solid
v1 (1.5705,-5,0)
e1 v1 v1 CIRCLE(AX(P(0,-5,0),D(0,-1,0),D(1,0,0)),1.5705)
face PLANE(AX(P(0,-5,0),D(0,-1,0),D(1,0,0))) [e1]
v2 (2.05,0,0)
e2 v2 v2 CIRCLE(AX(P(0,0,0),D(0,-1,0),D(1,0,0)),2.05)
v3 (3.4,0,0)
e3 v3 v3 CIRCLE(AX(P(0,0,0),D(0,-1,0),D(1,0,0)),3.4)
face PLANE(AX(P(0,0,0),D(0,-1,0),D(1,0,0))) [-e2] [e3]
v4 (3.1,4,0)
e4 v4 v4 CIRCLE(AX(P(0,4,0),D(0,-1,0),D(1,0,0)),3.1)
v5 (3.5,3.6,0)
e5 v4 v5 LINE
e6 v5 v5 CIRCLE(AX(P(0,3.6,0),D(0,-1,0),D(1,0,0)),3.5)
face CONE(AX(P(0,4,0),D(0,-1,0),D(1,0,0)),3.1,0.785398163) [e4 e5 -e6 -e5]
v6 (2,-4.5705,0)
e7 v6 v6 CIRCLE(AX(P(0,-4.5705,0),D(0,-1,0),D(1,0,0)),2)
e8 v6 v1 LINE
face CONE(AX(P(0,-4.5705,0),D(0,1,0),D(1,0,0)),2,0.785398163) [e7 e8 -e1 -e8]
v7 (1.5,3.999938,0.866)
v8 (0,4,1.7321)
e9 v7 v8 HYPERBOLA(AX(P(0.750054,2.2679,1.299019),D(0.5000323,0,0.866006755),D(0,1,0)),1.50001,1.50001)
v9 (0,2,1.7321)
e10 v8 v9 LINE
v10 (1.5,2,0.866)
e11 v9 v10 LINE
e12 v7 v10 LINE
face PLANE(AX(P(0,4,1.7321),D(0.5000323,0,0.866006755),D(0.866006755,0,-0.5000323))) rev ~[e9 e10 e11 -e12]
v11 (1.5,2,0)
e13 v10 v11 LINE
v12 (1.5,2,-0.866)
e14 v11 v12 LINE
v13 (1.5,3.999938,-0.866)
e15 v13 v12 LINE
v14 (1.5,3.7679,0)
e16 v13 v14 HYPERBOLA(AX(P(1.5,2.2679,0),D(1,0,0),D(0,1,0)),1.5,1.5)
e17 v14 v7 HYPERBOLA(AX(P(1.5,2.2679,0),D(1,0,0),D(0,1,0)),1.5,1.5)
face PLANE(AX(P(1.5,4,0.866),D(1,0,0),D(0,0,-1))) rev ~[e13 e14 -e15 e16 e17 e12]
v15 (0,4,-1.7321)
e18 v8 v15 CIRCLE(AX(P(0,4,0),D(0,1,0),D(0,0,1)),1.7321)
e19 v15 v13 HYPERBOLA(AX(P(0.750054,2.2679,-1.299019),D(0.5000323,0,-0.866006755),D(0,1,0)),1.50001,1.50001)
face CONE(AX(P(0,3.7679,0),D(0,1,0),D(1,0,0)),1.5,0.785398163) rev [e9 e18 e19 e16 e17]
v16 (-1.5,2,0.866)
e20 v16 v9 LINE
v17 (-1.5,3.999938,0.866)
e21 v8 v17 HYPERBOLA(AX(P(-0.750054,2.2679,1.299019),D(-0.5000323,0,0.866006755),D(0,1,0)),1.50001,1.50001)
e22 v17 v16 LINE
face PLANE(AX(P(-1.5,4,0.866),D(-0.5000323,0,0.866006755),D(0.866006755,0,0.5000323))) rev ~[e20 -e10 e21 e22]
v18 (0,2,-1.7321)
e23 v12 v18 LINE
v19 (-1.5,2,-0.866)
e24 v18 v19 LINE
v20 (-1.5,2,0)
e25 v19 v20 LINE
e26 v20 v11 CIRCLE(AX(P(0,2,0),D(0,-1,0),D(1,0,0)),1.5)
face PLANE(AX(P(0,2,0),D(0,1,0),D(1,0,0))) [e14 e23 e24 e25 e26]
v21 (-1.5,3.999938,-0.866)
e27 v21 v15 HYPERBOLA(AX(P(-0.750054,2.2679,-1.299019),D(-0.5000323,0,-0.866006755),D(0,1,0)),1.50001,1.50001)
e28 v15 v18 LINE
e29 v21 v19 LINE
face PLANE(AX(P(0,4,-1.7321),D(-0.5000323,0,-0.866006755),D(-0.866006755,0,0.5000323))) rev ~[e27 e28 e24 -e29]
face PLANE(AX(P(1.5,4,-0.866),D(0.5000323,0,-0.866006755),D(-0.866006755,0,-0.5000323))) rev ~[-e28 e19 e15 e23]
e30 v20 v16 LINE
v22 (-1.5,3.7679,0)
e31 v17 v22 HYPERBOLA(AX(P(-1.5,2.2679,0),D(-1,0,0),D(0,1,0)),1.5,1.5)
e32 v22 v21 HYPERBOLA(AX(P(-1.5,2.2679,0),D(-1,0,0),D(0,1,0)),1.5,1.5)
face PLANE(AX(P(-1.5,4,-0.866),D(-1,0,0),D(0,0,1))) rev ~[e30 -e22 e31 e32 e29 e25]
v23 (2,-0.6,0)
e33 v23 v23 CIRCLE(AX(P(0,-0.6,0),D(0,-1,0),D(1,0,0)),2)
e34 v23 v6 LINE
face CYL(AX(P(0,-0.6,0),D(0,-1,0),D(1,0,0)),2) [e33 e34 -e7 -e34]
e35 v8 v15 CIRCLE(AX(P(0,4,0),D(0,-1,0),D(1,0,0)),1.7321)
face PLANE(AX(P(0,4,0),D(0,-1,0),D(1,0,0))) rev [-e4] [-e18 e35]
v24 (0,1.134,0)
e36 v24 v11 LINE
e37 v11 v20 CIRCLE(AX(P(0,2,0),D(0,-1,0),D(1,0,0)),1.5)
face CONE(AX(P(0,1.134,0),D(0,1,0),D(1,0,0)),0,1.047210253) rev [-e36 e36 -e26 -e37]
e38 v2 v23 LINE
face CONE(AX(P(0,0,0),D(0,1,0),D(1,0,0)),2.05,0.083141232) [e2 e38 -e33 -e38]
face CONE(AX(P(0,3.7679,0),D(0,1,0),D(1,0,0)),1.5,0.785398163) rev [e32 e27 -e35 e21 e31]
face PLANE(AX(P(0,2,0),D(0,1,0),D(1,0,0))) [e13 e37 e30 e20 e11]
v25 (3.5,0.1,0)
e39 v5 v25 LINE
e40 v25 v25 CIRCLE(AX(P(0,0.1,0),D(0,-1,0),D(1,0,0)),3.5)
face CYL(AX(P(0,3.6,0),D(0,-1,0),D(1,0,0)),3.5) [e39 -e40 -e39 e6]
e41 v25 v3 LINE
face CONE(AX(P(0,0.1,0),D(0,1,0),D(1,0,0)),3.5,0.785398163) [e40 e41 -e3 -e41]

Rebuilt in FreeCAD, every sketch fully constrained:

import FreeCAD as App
import Part
import Sketcher
Q = App.Units.Quantity

doc = App.newDocument("Part")
body = doc.addObject("PartDesign::Body", "Body")

sketch1 = body.newObject("Sketcher::SketchObject", "Sketch")
sketch1.AttachmentSupport = (doc.getObject("XY_Plane"), [""])
sketch1.MapMode = "FlatFace"
sketch1.addGeometry([
    Part.LineSegment(App.Vector(0, 1.13, 0), App.Vector(0, -5, 0)),
    Part.LineSegment(App.Vector(0, -5, 0), App.Vector(1.57, -5, 0)),
    Part.LineSegment(App.Vector(1.57, -5, 0), App.Vector(2, -4.57, 0)),
    Part.LineSegment(App.Vector(2, -4.57, 0), App.Vector(2, -0.6, 0)),
    Part.LineSegment(App.Vector(2, -0.6, 0), App.Vector(2.05, 0, 0)),
    Part.LineSegment(App.Vector(2.05, 0, 0), App.Vector(3.4, 0, 0)),
    Part.LineSegment(App.Vector(3.4, 0, 0), App.Vector(3.5, 0.1, 0)),
    Part.LineSegment(App.Vector(3.5, 0.1, 0), App.Vector(3.5, 3.6, 0)),
    Part.LineSegment(App.Vector(3.5, 3.6, 0), App.Vector(3.1, 4, 0)),
    Part.LineSegment(App.Vector(3.1, 4, 0), App.Vector(1.73, 4, 0)),
    Part.LineSegment(App.Vector(1.73, 4, 0), App.Vector(1.5, 3.77, 0)),
    Part.LineSegment(App.Vector(1.5, 3.77, 0), App.Vector(1.5, 2, 0)),
    Part.LineSegment(App.Vector(1.5, 2, 0), App.Vector(0, 1.13, 0)),
], False)
sketch1.addConstraint([
    Sketcher.Constraint("Coincident", 0, 2, 1, 1),
    Sketcher.Constraint("Coincident", 1, 2, 2, 1),
    Sketcher.Constraint("Coincident", 2, 2, 3, 1),
    Sketcher.Constraint("Coincident", 3, 2, 4, 1),
    Sketcher.Constraint("Coincident", 4, 2, 5, 1),
    Sketcher.Constraint("Coincident", 5, 2, 6, 1),
    Sketcher.Constraint("Coincident", 6, 2, 7, 1),
    Sketcher.Constraint("Coincident", 7, 2, 8, 1),
    Sketcher.Constraint("Coincident", 8, 2, 9, 1),
    Sketcher.Constraint("Coincident", 9, 2, 10, 1),
    Sketcher.Constraint("Coincident", 10, 2, 11, 1),
    Sketcher.Constraint("Coincident", 11, 2, 12, 1),
    Sketcher.Constraint("Coincident", 12, 2, 0, 1),
    Sketcher.Constraint("Vertical", 0),
    Sketcher.Constraint("Horizontal", 1),
    Sketcher.Constraint("Vertical", 3),
    Sketcher.Constraint("Horizontal", 5),
    Sketcher.Constraint("Vertical", 7),
    Sketcher.Constraint("Horizontal", 9),
    Sketcher.Constraint("Vertical", 11),
    Sketcher.Constraint("PointOnObject", 0, 2, -2),
    Sketcher.Constraint("PointOnObject", 4, 2, -1),
    Sketcher.Constraint("Parallel", 2, 6),
    Sketcher.Constraint("Perpendicular", 6, 8),
    Sketcher.Constraint("Perpendicular", 8, 10),
    Sketcher.Constraint("Angle", 2, Q("45 deg")),
    Sketcher.Constraint("Angle", 12, Q("-150.0007 deg")),
    Sketcher.Constraint("DistanceY", 7, 1, 7, 2, Q("3.5 mm")),
    Sketcher.Constraint("DistanceY", 0, 2, -1, 1, Q("5 mm")),
    Sketcher.Constraint("DistanceX", -1, 1, 2, 2, Q("2 mm")),
    Sketcher.Constraint("DistanceY", -1, 1, 8, 2, Q("4 mm")),
    Sketcher.Constraint("DistanceY", -1, 1, 11, 2, Q("2 mm")),
    Sketcher.Constraint("DistanceX", 10, 2, 7, 2, Q("2 mm")),
    Sketcher.Constraint("DistanceX", 5, 1, 5, 2, Q("1.35 mm")),
    Sketcher.Constraint("DistanceY", 3, 2, -1, 1, Q("0.6 mm")),
    Sketcher.Constraint("DistanceX", -1, 1, 5, 2, Q("3.4 mm")),
    Sketcher.Constraint("DistanceX", -1, 1, 6, 2, Q("3.5 mm")),
    Sketcher.Constraint("DistanceX", 9, 2, 9, 1, Q("1.368 mm")),
    Sketcher.Constraint("DistanceX", 1, 1, 1, 2, Q("1.5705 mm")),
])
revolution = body.newObject("PartDesign::Revolution", "Revolution")
revolution.Profile = sketch1
revolution.ReferenceAxis = (sketch1, ["V_Axis"])
revolution.Angle = 360

sketch2 = body.newObject("Sketcher::SketchObject", "Sketch001")
sketch2.AttachmentSupport = (doc.getObject("XZ_Plane"), [""])
sketch2.MapMode = "FlatFace"
sketch2.AttachmentOffset = App.Placement(App.Vector(0, 0, -4), App.Rotation())
sketch2.addGeometry([
    Part.LineSegment(App.Vector(-1.5, -0.9, 0), App.Vector(-1.5, 0.9, 0)),
    Part.LineSegment(App.Vector(-1.5, 0.9, 0), App.Vector(0, 1.7, 0)),
    Part.LineSegment(App.Vector(0, 1.7, 0), App.Vector(1.5, 0.9, 0)),
    Part.LineSegment(App.Vector(1.5, 0.9, 0), App.Vector(1.5, -0.9, 0)),
    Part.LineSegment(App.Vector(1.5, -0.9, 0), App.Vector(0, -1.7, 0)),
    Part.LineSegment(App.Vector(0, -1.7, 0), App.Vector(-1.5, -0.9, 0)),
], False)
sketch2.addConstraint([
    Sketcher.Constraint("Coincident", 0, 2, 1, 1),
    Sketcher.Constraint("Coincident", 1, 2, 2, 1),
    Sketcher.Constraint("Coincident", 2, 2, 3, 1),
    Sketcher.Constraint("Coincident", 3, 2, 4, 1),
    Sketcher.Constraint("Coincident", 4, 2, 5, 1),
    Sketcher.Constraint("Coincident", 5, 2, 0, 1),
    Sketcher.Constraint("Vertical", 0),
    Sketcher.Constraint("Vertical", 3),
    Sketcher.Constraint("Symmetric", 0, 2, 3, 2, -1, 1),
    Sketcher.Constraint("Symmetric", 1, 2, 4, 2, -1, 1),
    Sketcher.Constraint("PointOnObject", 1, 2, -2),
    Sketcher.Constraint("Parallel", 2, 5),
    Sketcher.Constraint("Horizontal", 0, 2, 2, 2),
    Sketcher.Constraint("DistanceX", 0, 2, 2, 2, Q("3 mm")),
    Sketcher.Constraint("DistanceY", 0, 1, 0, 2, Q("1.732 mm")),
    Sketcher.Constraint("Distance", 1, Q("1.732 mm")),
])
pocket1 = body.newObject("PartDesign::Pocket", "Pocket")
pocket1.Profile = sketch2
pocket1.Length = 2
pocket1.Reversed = True

doc.recompute()
